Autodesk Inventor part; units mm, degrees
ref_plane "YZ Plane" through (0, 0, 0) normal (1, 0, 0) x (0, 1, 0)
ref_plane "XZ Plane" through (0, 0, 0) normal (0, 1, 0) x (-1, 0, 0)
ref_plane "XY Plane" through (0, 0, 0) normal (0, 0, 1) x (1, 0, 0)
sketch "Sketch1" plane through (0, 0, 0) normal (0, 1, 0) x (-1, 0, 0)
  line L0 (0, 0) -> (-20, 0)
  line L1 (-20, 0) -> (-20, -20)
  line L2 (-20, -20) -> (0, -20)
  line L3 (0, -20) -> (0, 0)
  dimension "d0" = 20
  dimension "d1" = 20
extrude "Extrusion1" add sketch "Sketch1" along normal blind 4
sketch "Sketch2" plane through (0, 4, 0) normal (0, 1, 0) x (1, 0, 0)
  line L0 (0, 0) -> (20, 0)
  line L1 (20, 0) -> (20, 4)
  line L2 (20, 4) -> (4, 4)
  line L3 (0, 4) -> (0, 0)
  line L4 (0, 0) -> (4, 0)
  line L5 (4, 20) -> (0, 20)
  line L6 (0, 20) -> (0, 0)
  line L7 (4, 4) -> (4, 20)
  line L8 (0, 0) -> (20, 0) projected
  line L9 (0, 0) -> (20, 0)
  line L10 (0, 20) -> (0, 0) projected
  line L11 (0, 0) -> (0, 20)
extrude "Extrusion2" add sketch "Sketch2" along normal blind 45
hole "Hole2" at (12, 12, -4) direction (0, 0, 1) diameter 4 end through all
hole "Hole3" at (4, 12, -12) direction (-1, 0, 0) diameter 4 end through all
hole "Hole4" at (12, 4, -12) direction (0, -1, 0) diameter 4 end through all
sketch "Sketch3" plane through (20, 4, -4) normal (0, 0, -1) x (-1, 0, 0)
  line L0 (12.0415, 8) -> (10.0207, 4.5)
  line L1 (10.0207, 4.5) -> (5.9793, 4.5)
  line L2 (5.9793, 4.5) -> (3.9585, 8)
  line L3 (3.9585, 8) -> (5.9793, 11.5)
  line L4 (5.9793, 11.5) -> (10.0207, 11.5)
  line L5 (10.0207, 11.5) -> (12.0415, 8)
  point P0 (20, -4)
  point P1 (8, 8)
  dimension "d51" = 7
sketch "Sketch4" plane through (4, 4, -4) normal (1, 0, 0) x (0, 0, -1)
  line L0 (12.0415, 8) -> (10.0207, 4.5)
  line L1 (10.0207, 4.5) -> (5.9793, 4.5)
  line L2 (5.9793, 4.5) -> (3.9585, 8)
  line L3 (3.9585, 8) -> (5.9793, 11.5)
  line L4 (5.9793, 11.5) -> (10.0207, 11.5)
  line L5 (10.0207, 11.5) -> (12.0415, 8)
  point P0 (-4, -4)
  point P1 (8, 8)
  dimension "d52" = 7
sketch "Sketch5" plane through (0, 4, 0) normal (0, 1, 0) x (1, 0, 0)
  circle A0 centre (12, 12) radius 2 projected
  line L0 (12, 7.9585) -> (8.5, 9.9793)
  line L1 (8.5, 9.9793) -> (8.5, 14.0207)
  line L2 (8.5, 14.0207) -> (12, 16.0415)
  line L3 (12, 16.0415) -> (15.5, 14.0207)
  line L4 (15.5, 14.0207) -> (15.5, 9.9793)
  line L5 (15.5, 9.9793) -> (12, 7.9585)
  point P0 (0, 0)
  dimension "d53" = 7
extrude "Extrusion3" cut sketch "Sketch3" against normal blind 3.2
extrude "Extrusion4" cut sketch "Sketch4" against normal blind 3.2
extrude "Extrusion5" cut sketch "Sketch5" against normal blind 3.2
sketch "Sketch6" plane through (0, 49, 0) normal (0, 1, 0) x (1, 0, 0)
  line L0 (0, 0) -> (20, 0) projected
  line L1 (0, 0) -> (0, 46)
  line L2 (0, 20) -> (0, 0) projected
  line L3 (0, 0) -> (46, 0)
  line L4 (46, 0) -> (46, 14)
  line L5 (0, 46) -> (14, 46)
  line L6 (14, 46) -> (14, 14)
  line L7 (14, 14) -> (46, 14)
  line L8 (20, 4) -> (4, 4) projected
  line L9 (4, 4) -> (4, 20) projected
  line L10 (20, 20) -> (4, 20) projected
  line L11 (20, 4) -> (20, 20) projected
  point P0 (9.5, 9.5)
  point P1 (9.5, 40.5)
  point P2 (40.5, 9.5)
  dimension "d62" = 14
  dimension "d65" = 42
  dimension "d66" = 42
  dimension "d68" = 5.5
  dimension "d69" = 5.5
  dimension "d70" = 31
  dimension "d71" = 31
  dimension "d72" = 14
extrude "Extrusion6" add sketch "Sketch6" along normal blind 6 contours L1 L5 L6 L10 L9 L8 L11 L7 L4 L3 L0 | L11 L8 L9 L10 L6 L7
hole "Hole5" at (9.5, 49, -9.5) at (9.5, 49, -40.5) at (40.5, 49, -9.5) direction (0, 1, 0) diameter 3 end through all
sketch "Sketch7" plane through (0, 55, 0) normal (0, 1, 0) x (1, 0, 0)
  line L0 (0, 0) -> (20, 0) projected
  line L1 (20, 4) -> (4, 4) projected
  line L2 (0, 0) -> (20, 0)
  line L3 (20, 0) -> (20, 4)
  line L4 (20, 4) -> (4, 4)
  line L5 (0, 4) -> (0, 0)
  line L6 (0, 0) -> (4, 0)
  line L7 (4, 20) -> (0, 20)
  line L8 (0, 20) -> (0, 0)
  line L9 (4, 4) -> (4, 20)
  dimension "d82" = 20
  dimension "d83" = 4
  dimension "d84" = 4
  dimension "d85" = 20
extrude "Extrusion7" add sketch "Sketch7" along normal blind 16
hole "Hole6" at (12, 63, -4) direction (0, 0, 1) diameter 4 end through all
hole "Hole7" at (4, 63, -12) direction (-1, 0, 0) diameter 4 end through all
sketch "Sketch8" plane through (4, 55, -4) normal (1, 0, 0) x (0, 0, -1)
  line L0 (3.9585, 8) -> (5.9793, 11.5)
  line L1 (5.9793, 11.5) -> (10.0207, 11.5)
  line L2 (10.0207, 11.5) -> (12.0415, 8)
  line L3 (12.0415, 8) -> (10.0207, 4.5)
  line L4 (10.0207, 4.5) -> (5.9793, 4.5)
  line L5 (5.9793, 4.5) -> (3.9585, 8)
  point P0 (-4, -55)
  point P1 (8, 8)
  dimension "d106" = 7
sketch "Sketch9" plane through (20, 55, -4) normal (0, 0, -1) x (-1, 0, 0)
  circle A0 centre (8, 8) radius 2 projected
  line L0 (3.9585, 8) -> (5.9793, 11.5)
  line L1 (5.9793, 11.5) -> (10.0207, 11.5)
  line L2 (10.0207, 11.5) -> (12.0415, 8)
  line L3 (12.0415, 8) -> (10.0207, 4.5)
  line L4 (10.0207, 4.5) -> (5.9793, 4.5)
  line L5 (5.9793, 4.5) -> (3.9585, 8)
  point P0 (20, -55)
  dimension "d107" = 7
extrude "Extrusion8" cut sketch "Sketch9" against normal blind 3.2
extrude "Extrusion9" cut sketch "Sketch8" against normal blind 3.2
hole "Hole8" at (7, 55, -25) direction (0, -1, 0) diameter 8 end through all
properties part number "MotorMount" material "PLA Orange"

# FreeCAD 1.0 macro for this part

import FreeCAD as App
import Part
import Sketcher
from FreeCAD import Vector
Q = App.Units.Quantity

doc = App.newDocument("Part")
body = doc.addObject("PartDesign::Body", "Body")

sketch1 = body.newObject("Sketcher::SketchObject", "Sketch")
sketch1.AttachmentSupport = (doc.getObject("XZ_Plane"), [""])
sketch1.MapMode = "FlatFace"
sketch1.addGeometry(Part.LineSegment(Vector(0, -20, 0), Vector(0, 0, 0)), False)
sketch1.addGeometry(Part.LineSegment(Vector(0, 0, 0), Vector(20, 0, 0)), False)
sketch1.addGeometry(Part.LineSegment(Vector(20, 0, 0), Vector(20, -20, 0)), False)
sketch1.addGeometry(Part.LineSegment(Vector(20, -20, 0), Vector(0, -20, 0)), False)
sketch1.addConstraint(Sketcher.Constraint("Coincident", 0, 2, 1, 1))
sketch1.addConstraint(Sketcher.Constraint("Coincident", 1, 2, 2, 1))
sketch1.addConstraint(Sketcher.Constraint("Coincident", 2, 2, 3, 1))
sketch1.addConstraint(Sketcher.Constraint("Coincident", 3, 2, 0, 1))
sketch1.addConstraint(Sketcher.Constraint("Vertical", 0))
sketch1.addConstraint(Sketcher.Constraint("Horizontal", 1))
sketch1.addConstraint(Sketcher.Constraint("Vertical", 2))
sketch1.addConstraint(Sketcher.Constraint("Horizontal", 3))
sketch1.addConstraint(Sketcher.Constraint("Coincident", 0, 2, -1, 1))
sketch1.addConstraint(Sketcher.Constraint("Equal", 3, 0))
sketch1.addConstraint(Sketcher.Constraint("DistanceX", 1, 1, 1, 2, 20.0))
pad1 = body.newObject("PartDesign::Pad", "Pad")
pad1.Profile = sketch1
pad1.Length = 4
pad1.Reversed = True

sketch2 = body.newObject("Sketcher::SketchObject", "Sketch001")
sketch2.AttachmentSupport = (doc.getObject("XZ_Plane"), [""])
sketch2.MapMode = "FlatFace"
sketch2.AttachmentOffset = App.Placement(Vector(0, 0, -4), App.Rotation())
sketch2.addGeometry(Part.LineSegment(Vector(0, -20, 0), Vector(0, 0, 0)), False)
sketch2.addGeometry(Part.LineSegment(Vector(0, 0, 0), Vector(20, 0, 0)), False)
sketch2.addGeometry(Part.LineSegment(Vector(20, 0, 0), Vector(20, -4, 0)), False)
sketch2.addGeometry(Part.LineSegment(Vector(20, -4, 0), Vector(4, -4, 0)), False)
sketch2.addGeometry(Part.LineSegment(Vector(4, -4, 0), Vector(4, -20, 0)), False)
sketch2.addGeometry(Part.LineSegment(Vector(4, -20, 0), Vector(0, -20, 0)), False)
sketch2.addConstraint(Sketcher.Constraint("Coincident", 0, 2, 1, 1))
sketch2.addConstraint(Sketcher.Constraint("Coincident", 1, 2, 2, 1))
sketch2.addConstraint(Sketcher.Constraint("Coincident", 2, 2, 3, 1))
sketch2.addConstraint(Sketcher.Constraint("Coincident", 3, 2, 4, 1))
sketch2.addConstraint(Sketcher.Constraint("Coincident", 4, 2, 5, 1))
sketch2.addConstraint(Sketcher.Constraint("Coincident", 5, 2, 0, 1))
sketch2.addConstraint(Sketcher.Constraint("Vertical", 0))
sketch2.addConstraint(Sketcher.Constraint("Horizontal", 1))
sketch2.addConstraint(Sketcher.Constraint("Vertical", 2))
sketch2.addConstraint(Sketcher.Constraint("Horizontal", 3))
sketch2.addConstraint(Sketcher.Constraint("Vertical", 4))
sketch2.addConstraint(Sketcher.Constraint("Horizontal", 5))
sketch2.addConstraint(Sketcher.Constraint("Coincident", 0, 2, -1, 1))
sketch2.addConstraint(Sketcher.Constraint("Equal", 1, 0))
sketch2.addConstraint(Sketcher.Constraint("Equal", 5, 2))
sketch2.addConstraint(Sketcher.Constraint("DistanceX", 1, 1, 1, 2, 20.0))
sketch2.addConstraint(Sketcher.Constraint("DistanceX", 3, 2, 3, 1, 16.0))
pad2 = body.newObject("PartDesign::Pad", "Pad001")
pad2.Profile = sketch2
pad2.Length = 45
pad2.Reversed = True

sketch3 = body.newObject("Sketcher::SketchObject", "Sketch002")
sketch3.AttachmentSupport = (doc.getObject("XY_Plane"), [""])
sketch3.MapMode = "FlatFace"
sketch3.AttachmentOffset = App.Placement(Vector(0, 0, -4), App.Rotation())
sketch3.addGeometry(Part.Circle(Vector(12, 12, 0), Vector(0, 0, 1), 2), False)
sketch3.addConstraint(Sketcher.Constraint("Diameter", 0, 4.0))
sketch3.addConstraint(Sketcher.Constraint("DistanceX", -1, 1, 0, 3, 12.0))
sketch3.addConstraint(Sketcher.Constraint("DistanceY", -1, 1, 0, 3, 12.0))
doc.recompute()
hole = body.newObject("PartDesign::Hole", "Hole")
hole.Profile = sketch3
hole.ThreadType = "None"
hole.Diameter = 4
hole.DepthType = "ThroughAll"
hole.Reversed = True

sketch4 = body.newObject("Sketcher::SketchObject", "Sketch003")
sketch4.AttachmentSupport = (doc.getObject("YZ_Plane"), [""])
sketch4.MapMode = "FlatFace"
sketch4.AttachmentOffset = App.Placement(Vector(0, 0, 4), App.Rotation())
sketch4.addGeometry(Part.Circle(Vector(12, -12, 0), Vector(0, 0, 1), 2), False)
sketch4.addConstraint(Sketcher.Constraint("Diameter", 0, 4.0))
sketch4.addConstraint(Sketcher.Constraint("DistanceX", -1, 1, 0, 3, 12.0))
sketch4.addConstraint(Sketcher.Constraint("DistanceY", 0, 3, -1, 1, 12.0))
doc.recompute()
hole2 = body.newObject("PartDesign::Hole", "Hole001")
hole2.Profile = sketch4
hole2.ThreadType = "None"
hole2.Diameter = 4
hole2.DepthType = "ThroughAll"

sketch5 = body.newObject("Sketcher::SketchObject", "Sketch004")
sketch5.AttachmentSupport = (doc.getObject("XZ_Plane"), [""])
sketch5.MapMode = "FlatFace"
sketch5.AttachmentOffset = App.Placement(Vector(0, 0, -4), App.Rotation())
sketch5.addGeometry(Part.Circle(Vector(12, -12, 0), Vector(0, 0, 1), 2), False)
sketch5.addConstraint(Sketcher.Constraint("Diameter", 0, 4.0))
sketch5.addConstraint(Sketcher.Constraint("DistanceX", -1, 1, 0, 3, 12.0))
sketch5.addConstraint(Sketcher.Constraint("DistanceY", 0, 3, -1, 1, 12.0))
doc.recompute()
hole3 = body.newObject("PartDesign::Hole", "Hole002")
hole3.Profile = sketch5
hole3.ThreadType = "None"
hole3.Diameter = 4
hole3.DepthType = "ThroughAll"
hole3.Reversed = True

sketch6 = body.newObject("Sketcher::SketchObject", "Sketch005")
sketch6.AttachmentSupport = (doc.getObject("XY_Plane"), [""])
sketch6.MapMode = "FlatFace"
sketch6.AttachmentOffset = App.Placement(Vector(0, 0, -4), App.Rotation())
sketch6.addGeometry(Part.LineSegment(Vector(10, 8.5, 0), Vector(8, 12, 0)), False)
sketch6.addGeometry(Part.LineSegment(Vector(8, 12, 0), Vector(10, 15.5, 0)), False)
sketch6.addGeometry(Part.LineSegment(Vector(10, 15.5, 0), Vector(14, 15.5, 0)), False)
sketch6.addGeometry(Part.LineSegment(Vector(14, 15.5, 0), Vector(16, 12, 0)), False)
sketch6.addGeometry(Part.LineSegment(Vector(16, 12, 0), Vector(14, 8.5, 0)), False)
sketch6.addGeometry(Part.LineSegment(Vector(14, 8.5, 0), Vector(10, 8.5, 0)), False)
sketch6.addConstraint(Sketcher.Constraint("Coincident", 0, 2, 1, 1))
sketch6.addConstraint(Sketcher.Constraint("Coincident", 1, 2, 2, 1))
sketch6.addConstraint(Sketcher.Constraint("Coincident", 2, 2, 3, 1))
sketch6.addConstraint(Sketcher.Constraint("Coincident", 3, 2, 4, 1))
sketch6.addConstraint(Sketcher.Constraint("Coincident", 4, 2, 5, 1))
sketch6.addConstraint(Sketcher.Constraint("Coincident", 5, 2, 0, 1))
sketch6.addConstraint(Sketcher.Constraint("Horizontal", 2))
sketch6.addConstraint(Sketcher.Constraint("Horizontal", 5))
sketch6.addConstraint(Sketcher.Constraint("Parallel", 0, 3))
sketch6.addConstraint(Sketcher.Constraint("Parallel", 1, 4))
sketch6.addConstraint(Sketcher.Constraint("Horizontal", 0, 2, 3, 2))
sketch6.addConstraint(Sketcher.Constraint("Vertical", 2, 2, 4, 2))
sketch6.addConstraint(Sketcher.Constraint("Vertical", 1, 2, 5, 2))
sketch6.addConstraint(Sketcher.Constraint("DistanceY", 4, 2, 2, 2, 7.0))
sketch6.addConstraint(Sketcher.Constraint("Angle", 0, Q("120.001 deg")))
sketch6.addConstraint(Sketcher.Constraint("DistanceY", -1, 1, 0, 2, 12.0))
sketch6.addConstraint(Sketcher.Constraint("DistanceX", 2, 1, 2, 2, 4.0414))
sketch6.addConstraint(Sketcher.Constraint("DistanceX", -1, 1, 0, 2, 7.9585))
pocket1 = body.newObject("PartDesign::Pocket", "Pocket")
pocket1.Profile = sketch6
pocket1.Length = 3.2
pocket1.Reversed = True

sketch7 = body.newObject("Sketcher::SketchObject", "Sketch006")
sketch7.AttachmentSupport = (doc.getObject("YZ_Plane"), [""])
sketch7.MapMode = "FlatFace"
sketch7.AttachmentOffset = App.Placement(Vector(0, 0, 4), App.Rotation())
sketch7.addGeometry(Part.LineSegment(Vector(8.5, -14, 0), Vector(12, -16, 0)), False)
sketch7.addGeometry(Part.LineSegment(Vector(12, -16, 0), Vector(15.5, -14, 0)), False)
sketch7.addGeometry(Part.LineSegment(Vector(15.5, -14, 0), Vector(15.5, -10, 0)), False)
sketch7.addGeometry(Part.LineSegment(Vector(15.5, -10, 0), Vector(12, -8, 0)), False)
sketch7.addGeometry(Part.LineSegment(Vector(12, -8, 0), Vector(8.5, -10, 0)), False)
sketch7.addGeometry(Part.LineSegment(Vector(8.5, -10, 0), Vector(8.5, -14, 0)), False)
sketch7.addConstraint(Sketcher.Constraint("Coincident", 0, 2, 1, 1))
sketch7.addConstraint(Sketcher.Constraint("Coincident", 1, 2, 2, 1))
sketch7.addConstraint(Sketcher.Constraint("Coincident", 2, 2, 3, 1))
sketch7.addConstraint(Sketcher.Constraint("Coincident", 3, 2, 4, 1))
sketch7.addConstraint(Sketcher.Constraint("Coincident", 4, 2, 5, 1))
sketch7.addConstraint(Sketcher.Constraint("Coincident", 5, 2, 0, 1))
sketch7.addConstraint(Sketcher.Constraint("Vertical", 2))
sketch7.addConstraint(Sketcher.Constraint("Vertical", 5))
sketch7.addConstraint(Sketcher.Constraint("Parallel", 0, 3))
sketch7.addConstraint(Sketcher.Constraint("Parallel", 1, 4))
sketch7.addConstraint(Sketcher.Constraint("Horizontal", 2, 2, 4, 2))
sketch7.addConstraint(Sketcher.Constraint("Horizontal", 1, 2, 5, 2))
sketch7.addConstraint(Sketcher.Constraint("Vertical", 0, 2, 3, 2))
sketch7.addConstraint(Sketcher.Constraint("DistanceX", 4, 2, 2, 2, 7.0))
sketch7.addConstraint(Sketcher.Constraint("Angle", 0, Q("-30.001 deg")))
sketch7.addConstraint(Sketcher.Constraint("DistanceX", -1, 1, 0, 2, 12.0))
sketch7.addConstraint(Sketcher.Constraint("DistanceY", 2, 1, 2, 2, 4.0414))
sketch7.addConstraint(Sketcher.Constraint("DistanceY", 0, 2, -1, 1, 16.0415))
pocket2 = body.newObject("PartDesign::Pocket", "Pocket001")
pocket2.Profile = sketch7
pocket2.Length = 3.2

sketch8 = body.newObject("Sketcher::SketchObject", "Sketch007")
sketch8.AttachmentSupport = (doc.getObject("XZ_Plane"), [""])
sketch8.MapMode = "FlatFace"
sketch8.AttachmentOffset = App.Placement(Vector(0, 0, -4), App.Rotation())
sketch8.addGeometry(Part.LineSegment(Vector(8.5, -10, 0), Vector(12, -8, 0)), False)
sketch8.addGeometry(Part.LineSegment(Vector(12, -8, 0), Vector(15.5, -10, 0)), False)
sketch8.addGeometry(Part.LineSegment(Vector(15.5, -10, 0), Vector(15.5, -14, 0)), False)
sketch8.addGeometry(Part.LineSegment(Vector(15.5, -14, 0), Vector(12, -16, 0)), False)
sketch8.addGeometry(Part.LineSegment(Vector(12, -16, 0), Vector(8.5, -14, 0)), False)
sketch8.addGeometry(Part.LineSegment(Vector(8.5, -14, 0), Vector(8.5, -10, 0)), False)
sketch8.addGeometry(Part.Circle(Vector(12, -12, 0), Vector(0, 0, 1), 2), False)
sketch8.addConstraint(Sketcher.Constraint("Coincident", 0, 2, 1, 1))
sketch8.addConstraint(Sketcher.Constraint("Coincident", 1, 2, 2, 1))
sketch8.addConstraint(Sketcher.Constraint("Coincident", 2, 2, 3, 1))
sketch8.addConstraint(Sketcher.Constraint("Coincident", 3, 2, 4, 1))
sketch8.addConstraint(Sketcher.Constraint("Coincident", 4, 2, 5, 1))
sketch8.addConstraint(Sketcher.Constraint("Coincident", 5, 2, 0, 1))
sketch8.addConstraint(Sketcher.Constraint("Vertical", 2))
sketch8.addConstraint(Sketcher.Constraint("Vertical", 5))
sketch8.addConstraint(Sketcher.Constraint("Parallel", 0, 3))
sketch8.addConstraint(Sketcher.Constraint("Parallel", 1, 4))
sketch8.addConstraint(Sketcher.Constraint("Horizontal", 2, 2, 4, 2))
sketch8.addConstraint(Sketcher.Constraint("Horizontal", 1, 2, 5, 2))
sketch8.addConstraint(Sketcher.Constraint("Vertical", 6, 3, 0, 2))
sketch8.addConstraint(Sketcher.Constraint("Vertical", 0, 2, 3, 2))
sketch8.addConstraint(Sketcher.Constraint("Diameter", 6, 4.0))
sketch8.addConstraint(Sketcher.Constraint("DistanceX", 4, 2, 2, 2, 7.0))
sketch8.addConstraint(Sketcher.Constraint("Angle", 0, Q("30.001 deg")))
sketch8.addConstraint(Sketcher.Constraint("DistanceX", -1, 1, 6, 3, 12.0))
sketch8.addConstraint(Sketcher.Constraint("DistanceY", 6, 3, -1, 1, 12.0))
sketch8.addConstraint(Sketcher.Constraint("DistanceY", 2, 2, 2, 1, 4.0414))
sketch8.addConstraint(Sketcher.Constraint("DistanceY", 0, 2, -1, 1, 7.9585))
pocket3 = body.newObject("PartDesign::Pocket", "Pocket002")
pocket3.Profile = sketch8
pocket3.Length = 3.2
pocket3.Reversed = True

sketch9 = body.newObject("Sketcher::SketchObject", "Sketch008")
sketch9.AttachmentSupport = (doc.getObject("XZ_Plane"), [""])
sketch9.MapMode = "FlatFace"
sketch9.AttachmentOffset = App.Placement(Vector(0, 0, -49), App.Rotation())
sketch9.addGeometry(Part.LineSegment(Vector(0, 0, 0), Vector(46, 0, 0)), False)
sketch9.addGeometry(Part.LineSegment(Vector(46, 0, 0), Vector(46, -14, 0)), False)
sketch9.addGeometry(Part.LineSegment(Vector(46, -14, 0), Vector(14, -14, 0)), False)
sketch9.addGeometry(Part.LineSegment(Vector(14, -14, 0), Vector(14, -46, 0)), False)
sketch9.addGeometry(Part.LineSegment(Vector(14, -46, 0), Vector(0, -46, 0)), False)
sketch9.addGeometry(Part.LineSegment(Vector(0, -46, 0), Vector(0, 0, 0)), False)
sketch9.addConstraint(Sketcher.Constraint("Coincident", 0, 2, 1, 1))
sketch9.addConstraint(Sketcher.Constraint("Coincident", 1, 2, 2, 1))
sketch9.addConstraint(Sketcher.Constraint("Coincident", 2, 2, 3, 1))
sketch9.addConstraint(Sketcher.Constraint("Coincident", 3, 2, 4, 1))
sketch9.addConstraint(Sketcher.Constraint("Coincident", 4, 2, 5, 1))
sketch9.addConstraint(Sketcher.Constraint("Coincident", 5, 2, 0, 1))
sketch9.addConstraint(Sketcher.Constraint("Horizontal", 0))
sketch9.addConstraint(Sketcher.Constraint("Vertical", 1))
sketch9.addConstraint(Sketcher.Constraint("Horizontal", 2))
sketch9.addConstraint(Sketcher.Constraint("Vertical", 3))
sketch9.addConstraint(Sketcher.Constraint("Horizontal", 4))
sketch9.addConstraint(Sketcher.Constraint("Vertical", 5))
sketch9.addConstraint(Sketcher.Constraint("Coincident", 5, 2, -1, 1))
sketch9.addConstraint(Sketcher.Constraint("Equal", 4, 1))
sketch9.addConstraint(Sketcher.Constraint("Equal", 2, 3))
sketch9.addConstraint(Sketcher.Constraint("DistanceX", 4, 2, 4, 1, 14.0))
sketch9.addConstraint(Sketcher.Constraint("DistanceX", 0, 1, 0, 2, 46.0))
pad3 = body.newObject("PartDesign::Pad", "Pad002")
pad3.Profile = sketch9
pad3.Length = 6
pad3.Reversed = True

sketch10 = body.newObject("Sketcher::SketchObject", "Sketch009")
sketch10.AttachmentSupport = (doc.getObject("XZ_Plane"), [""])
sketch10.MapMode = "FlatFace"
sketch10.AttachmentOffset = App.Placement(Vector(0, 0, -49), App.Rotation())
sketch10.addGeometry(Part.Circle(Vector(9.5, -9.5, 0), Vector(0, 0, 1), 1.5), False)
sketch10.addGeometry(Part.Circle(Vector(9.5, -40.5, 0), Vector(0, 0, 1), 1.5), False)
sketch10.addGeometry(Part.Circle(Vector(40.5, -9.5, 0), Vector(0, 0, 1), 1.5), False)
sketch10.addConstraint(Sketcher.Constraint("Equal", 0, 1))
sketch10.addConstraint(Sketcher.Constraint("Equal", 1, 2))
sketch10.addConstraint(Sketcher.Constraint("Horizontal", 0, 3, 2, 3))
sketch10.addConstraint(Sketcher.Constraint("Vertical", 0, 3, 1, 3))
sketch10.addConstraint(Sketcher.Constraint("Diameter", 0, 3.0))
sketch10.addConstraint(Sketcher.Constraint("DistanceY", 1, 3, 0, 3, 31.0))
sketch10.addConstraint(Sketcher.Constraint("DistanceX", 0, 3, 2, 3, 31.0))
sketch10.addConstraint(Sketcher.Constraint("DistanceX", -1, 1, 0, 3, 9.5))
sketch10.addConstraint(Sketcher.Constraint("DistanceY", 0, 3, -1, 1, 9.5))
doc.recompute()
hole4 = body.newObject("PartDesign::Hole", "Hole003")
hole4.Profile = sketch10
hole4.ThreadType = "None"
hole4.Diameter = 3
hole4.DepthType = "ThroughAll"

sketch11 = body.newObject("Sketcher::SketchObject", "Sketch010")
sketch11.AttachmentSupport = (doc.getObject("XZ_Plane"), [""])
sketch11.MapMode = "FlatFace"
sketch11.AttachmentOffset = App.Placement(Vector(0, 0, -55), App.Rotation())
sketch11.addGeometry(Part.LineSegment(Vector(0, -20, 0), Vector(0, 0, 0)), False)
sketch11.addGeometry(Part.LineSegment(Vector(0, 0, 0), Vector(20, 0, 0)), False)
sketch11.addGeometry(Part.LineSegment(Vector(20, 0, 0), Vector(20, -4, 0)), False)
sketch11.addGeometry(Part.LineSegment(Vector(20, -4, 0), Vector(4, -4, 0)), False)
sketch11.addGeometry(Part.LineSegment(Vector(4, -4, 0), Vector(4, -20, 0)), False)
sketch11.addGeometry(Part.LineSegment(Vector(4, -20, 0), Vector(0, -20, 0)), False)
sketch11.addConstraint(Sketcher.Constraint("Coincident", 0, 2, 1, 1))
sketch11.addConstraint(Sketcher.Constraint("Coincident", 1, 2, 2, 1))
sketch11.addConstraint(Sketcher.Constraint("Coincident", 2, 2, 3, 1))
sketch11.addConstraint(Sketcher.Constraint("Coincident", 3, 2, 4, 1))
sketch11.addConstraint(Sketcher.Constraint("Coincident", 4, 2, 5, 1))
sketch11.addConstraint(Sketcher.Constraint("Coincident", 5, 2, 0, 1))
sketch11.addConstraint(Sketcher.Constraint("Vertical", 0))
sketch11.addConstraint(Sketcher.Constraint("Horizontal", 1))
sketch11.addConstraint(Sketcher.Constraint("Vertical", 2))
sketch11.addConstraint(Sketcher.Constraint("Horizontal", 3))
sketch11.addConstraint(Sketcher.Constraint("Vertical", 4))
sketch11.addConstraint(Sketcher.Constraint("Horizontal", 5))
sketch11.addConstraint(Sketcher.Constraint("Coincident", 0, 2, -1, 1))
sketch11.addConstraint(Sketcher.Constraint("Equal", 1, 0))
sketch11.addConstraint(Sketcher.Constraint("Equal", 5, 2))
sketch11.addConstraint(Sketcher.Constraint("DistanceX", 1, 1, 1, 2, 20.0))
sketch11.addConstraint(Sketcher.Constraint("DistanceX", 5, 2, 5, 1, 4.0))
pad4 = body.newObject("PartDesign::Pad", "Pad003")
pad4.Profile = sketch11
pad4.Length = 16
pad4.Reversed = True

sketch12 = body.newObject("Sketcher::SketchObject", "Sketch011")
sketch12.AttachmentSupport = (doc.getObject("XY_Plane"), [""])
sketch12.MapMode = "FlatFace"
sketch12.AttachmentOffset = App.Placement(Vector(0, 0, -4), App.Rotation())
sketch12.addGeometry(Part.Circle(Vector(12, 63, 0), Vector(0, 0, 1), 2), False)
sketch12.addConstraint(Sketcher.Constraint("Diameter", 0, 4.0))
sketch12.addConstraint(Sketcher.Constraint("DistanceX", -1, 1, 0, 3, 12.0))
sketch12.addConstraint(Sketcher.Constraint("DistanceY", -1, 1, 0, 3, 63.0))
doc.recompute()
hole5 = body.newObject("PartDesign::Hole", "Hole004")
hole5.Profile = sketch12
hole5.ThreadType = "None"
hole5.Diameter = 4
hole5.DepthType = "ThroughAll"
hole5.Reversed = True

sketch13 = body.newObject("Sketcher::SketchObject", "Sketch012")
sketch13.AttachmentSupport = (doc.getObject("YZ_Plane"), [""])
sketch13.MapMode = "FlatFace"
sketch13.AttachmentOffset = App.Placement(Vector(0, 0, 4), App.Rotation())
sketch13.addGeometry(Part.Circle(Vector(63, -12, 0), Vector(0, 0, 1), 2), False)
sketch13.addConstraint(Sketcher.Constraint("Diameter", 0, 4.0))
sketch13.addConstraint(Sketcher.Constraint("DistanceX", -1, 1, 0, 3, 63.0))
sketch13.addConstraint(Sketcher.Constraint("DistanceY", 0, 3, -1, 1, 12.0))
doc.recompute()
hole6 = body.newObject("PartDesign::Hole", "Hole005")
hole6.Profile = sketch13
hole6.ThreadType = "None"
hole6.Diameter = 4
hole6.DepthType = "ThroughAll"

sketch14 = body.newObject("Sketcher::SketchObject", "Sketch013")
sketch14.AttachmentSupport = (doc.getObject("XY_Plane"), [""])
sketch14.MapMode = "FlatFace"
sketch14.AttachmentOffset = App.Placement(Vector(0, 0, -4), App.Rotation())
sketch14.addGeometry(Part.LineSegment(Vector(14, 66.5, 0), Vector(16, 63, 0)), False)
sketch14.addGeometry(Part.LineSegment(Vector(16, 63, 0), Vector(14, 59.5, 0)), False)
sketch14.addGeometry(Part.LineSegment(Vector(14, 59.5, 0), Vector(10, 59.5, 0)), False)
sketch14.addGeometry(Part.LineSegment(Vector(10, 59.5, 0), Vector(8, 63, 0)), False)
sketch14.addGeometry(Part.LineSegment(Vector(8, 63, 0), Vector(10, 66.5, 0)), False)
sketch14.addGeometry(Part.LineSegment(Vector(10, 66.5, 0), Vector(14, 66.5, 0)), False)
sketch14.addGeometry(Part.Circle(Vector(12, 63, 0), Vector(0, 0, 1), 2), False)
sketch14.addConstraint(Sketcher.Constraint("Coincident", 0, 2, 1, 1))
sketch14.addConstraint(Sketcher.Constraint("Coincident", 1, 2, 2, 1))
sketch14.addConstraint(Sketcher.Constraint("Coincident", 2, 2, 3, 1))
sketch14.addConstraint(Sketcher.Constraint("Coincident", 3, 2, 4, 1))
sketch14.addConstraint(Sketcher.Constraint("Coincident", 4, 2, 5, 1))
sketch14.addConstraint(Sketcher.Constraint("Coincident", 5, 2, 0, 1))
sketch14.addConstraint(Sketcher.Constraint("Horizontal", 2))
sketch14.addConstraint(Sketcher.Constraint("Horizontal", 5))
sketch14.addConstraint(Sketcher.Constraint("Parallel", 0, 3))
sketch14.addConstraint(Sketcher.Constraint("Parallel", 1, 4))
sketch14.addConstraint(Sketcher.Constraint("Horizontal", 6, 3, 0, 2))
sketch14.addConstraint(Sketcher.Constraint("Horizontal", 0, 2, 3, 2))
sketch14.addConstraint(Sketcher.Constraint("Vertical", 2, 2, 4, 2))
sketch14.addConstraint(Sketcher.Constraint("Vertical", 1, 2, 5, 2))
sketch14.addConstraint(Sketcher.Constraint("Diameter", 6, 4.0))
sketch14.addConstraint(Sketcher.Constraint("DistanceY", 2, 2, 4, 2, 7.0))
sketch14.addConstraint(Sketcher.Constraint("Angle", 0, Q("-59.999 deg")))
sketch14.addConstraint(Sketcher.Constraint("DistanceX", -1, 1, 6, 3, 12.0))
sketch14.addConstraint(Sketcher.Constraint("DistanceY", -1, 1, 6, 3, 63.0))
sketch14.addConstraint(Sketcher.Constraint("DistanceX", 2, 2, 2, 1, 4.0414))
sketch14.addConstraint(Sketcher.Constraint("DistanceX", -1, 1, 0, 2, 16.0415))
pocket4 = body.newObject("PartDesign::Pocket", "Pocket003")
pocket4.Profile = sketch14
pocket4.Length = 3.2
pocket4.Reversed = True

sketch15 = body.newObject("Sketcher::SketchObject", "Sketch014")
sketch15.AttachmentSupport = (doc.getObject("YZ_Plane"), [""])
sketch15.MapMode = "FlatFace"
sketch15.AttachmentOffset = App.Placement(Vector(0, 0, 4), App.Rotation())
sketch15.addGeometry(Part.LineSegment(Vector(66.5, -10, 0), Vector(63, -8, 0)), False)
sketch15.addGeometry(Part.LineSegment(Vector(63, -8, 0), Vector(59.5, -10, 0)), False)
sketch15.addGeometry(Part.LineSegment(Vector(59.5, -10, 0), Vector(59.5, -14, 0)), False)
sketch15.addGeometry(Part.LineSegment(Vector(59.5, -14, 0), Vector(63, -16, 0)), False)
sketch15.addGeometry(Part.LineSegment(Vector(63, -16, 0), Vector(66.5, -14, 0)), False)
sketch15.addGeometry(Part.LineSegment(Vector(66.5, -14, 0), Vector(66.5, -10, 0)), False)
sketch15.addConstraint(Sketcher.Constraint("Coincident", 0, 2, 1, 1))
sketch15.addConstraint(Sketcher.Constraint("Coincident", 1, 2, 2, 1))
sketch15.addConstraint(Sketcher.Constraint("Coincident", 2, 2, 3, 1))
sketch15.addConstraint(Sketcher.Constraint("Coincident", 3, 2, 4, 1))
sketch15.addConstraint(Sketcher.Constraint("Coincident", 4, 2, 5, 1))
sketch15.addConstraint(Sketcher.Constraint("Coincident", 5, 2, 0, 1))
sketch15.addConstraint(Sketcher.Constraint("Vertical", 2))
sketch15.addConstraint(Sketcher.Constraint("Vertical", 5))
sketch15.addConstraint(Sketcher.Constraint("Parallel", 0, 3))
sketch15.addConstraint(Sketcher.Constraint("Parallel", 1, 4))
sketch15.addConstraint(Sketcher.Constraint("Horizontal", 2, 2, 4, 2))
sketch15.addConstraint(Sketcher.Constraint("Horizontal", 1, 2, 5, 2))
sketch15.addConstraint(Sketcher.Constraint("Vertical", 0, 2, 3, 2))
sketch15.addConstraint(Sketcher.Constraint("DistanceX", 2, 2, 4, 2, 7.0))
sketch15.addConstraint(Sketcher.Constraint("Angle", 0, Q("149.999 deg")))
sketch15.addConstraint(Sketcher.Constraint("DistanceX", -1, 1, 0, 2, 63.0))
sketch15.addConstraint(Sketcher.Constraint("DistanceY", 2, 2, 2, 1, 4.0414))
sketch15.addConstraint(Sketcher.Constraint("DistanceY", 0, 2, -1, 1, 7.9585))
pocket5 = body.newObject("PartDesign::Pocket", "Pocket004")
pocket5.Profile = sketch15
pocket5.Length = 3.2

sketch16 = body.newObject("Sketcher::SketchObject", "Sketch015")
sketch16.AttachmentSupport = (doc.getObject("XZ_Plane"), [""])
sketch16.MapMode = "FlatFace"
sketch16.AttachmentOffset = App.Placement(Vector(0, 0, -55), App.Rotation())
sketch16.addGeometry(Part.Circle(Vector(7, -25, 0), Vector(0, 0, 1), 4), False)
sketch16.addConstraint(Sketcher.Constraint("Diameter", 0, 8.0))
sketch16.addConstraint(Sketcher.Constraint("DistanceX", -1, 1, 0, 3, 7.0))
sketch16.addConstraint(Sketcher.Constraint("DistanceY", 0, 3, -1, 1, 25.0))
doc.recompute()
hole7 = body.newObject("PartDesign::Hole", "Hole006")
hole7.Profile = sketch16
hole7.ThreadType = "None"
hole7.Diameter = 8
hole7.DepthType = "ThroughAll"
hole7.Reversed = True

doc.recompute()
